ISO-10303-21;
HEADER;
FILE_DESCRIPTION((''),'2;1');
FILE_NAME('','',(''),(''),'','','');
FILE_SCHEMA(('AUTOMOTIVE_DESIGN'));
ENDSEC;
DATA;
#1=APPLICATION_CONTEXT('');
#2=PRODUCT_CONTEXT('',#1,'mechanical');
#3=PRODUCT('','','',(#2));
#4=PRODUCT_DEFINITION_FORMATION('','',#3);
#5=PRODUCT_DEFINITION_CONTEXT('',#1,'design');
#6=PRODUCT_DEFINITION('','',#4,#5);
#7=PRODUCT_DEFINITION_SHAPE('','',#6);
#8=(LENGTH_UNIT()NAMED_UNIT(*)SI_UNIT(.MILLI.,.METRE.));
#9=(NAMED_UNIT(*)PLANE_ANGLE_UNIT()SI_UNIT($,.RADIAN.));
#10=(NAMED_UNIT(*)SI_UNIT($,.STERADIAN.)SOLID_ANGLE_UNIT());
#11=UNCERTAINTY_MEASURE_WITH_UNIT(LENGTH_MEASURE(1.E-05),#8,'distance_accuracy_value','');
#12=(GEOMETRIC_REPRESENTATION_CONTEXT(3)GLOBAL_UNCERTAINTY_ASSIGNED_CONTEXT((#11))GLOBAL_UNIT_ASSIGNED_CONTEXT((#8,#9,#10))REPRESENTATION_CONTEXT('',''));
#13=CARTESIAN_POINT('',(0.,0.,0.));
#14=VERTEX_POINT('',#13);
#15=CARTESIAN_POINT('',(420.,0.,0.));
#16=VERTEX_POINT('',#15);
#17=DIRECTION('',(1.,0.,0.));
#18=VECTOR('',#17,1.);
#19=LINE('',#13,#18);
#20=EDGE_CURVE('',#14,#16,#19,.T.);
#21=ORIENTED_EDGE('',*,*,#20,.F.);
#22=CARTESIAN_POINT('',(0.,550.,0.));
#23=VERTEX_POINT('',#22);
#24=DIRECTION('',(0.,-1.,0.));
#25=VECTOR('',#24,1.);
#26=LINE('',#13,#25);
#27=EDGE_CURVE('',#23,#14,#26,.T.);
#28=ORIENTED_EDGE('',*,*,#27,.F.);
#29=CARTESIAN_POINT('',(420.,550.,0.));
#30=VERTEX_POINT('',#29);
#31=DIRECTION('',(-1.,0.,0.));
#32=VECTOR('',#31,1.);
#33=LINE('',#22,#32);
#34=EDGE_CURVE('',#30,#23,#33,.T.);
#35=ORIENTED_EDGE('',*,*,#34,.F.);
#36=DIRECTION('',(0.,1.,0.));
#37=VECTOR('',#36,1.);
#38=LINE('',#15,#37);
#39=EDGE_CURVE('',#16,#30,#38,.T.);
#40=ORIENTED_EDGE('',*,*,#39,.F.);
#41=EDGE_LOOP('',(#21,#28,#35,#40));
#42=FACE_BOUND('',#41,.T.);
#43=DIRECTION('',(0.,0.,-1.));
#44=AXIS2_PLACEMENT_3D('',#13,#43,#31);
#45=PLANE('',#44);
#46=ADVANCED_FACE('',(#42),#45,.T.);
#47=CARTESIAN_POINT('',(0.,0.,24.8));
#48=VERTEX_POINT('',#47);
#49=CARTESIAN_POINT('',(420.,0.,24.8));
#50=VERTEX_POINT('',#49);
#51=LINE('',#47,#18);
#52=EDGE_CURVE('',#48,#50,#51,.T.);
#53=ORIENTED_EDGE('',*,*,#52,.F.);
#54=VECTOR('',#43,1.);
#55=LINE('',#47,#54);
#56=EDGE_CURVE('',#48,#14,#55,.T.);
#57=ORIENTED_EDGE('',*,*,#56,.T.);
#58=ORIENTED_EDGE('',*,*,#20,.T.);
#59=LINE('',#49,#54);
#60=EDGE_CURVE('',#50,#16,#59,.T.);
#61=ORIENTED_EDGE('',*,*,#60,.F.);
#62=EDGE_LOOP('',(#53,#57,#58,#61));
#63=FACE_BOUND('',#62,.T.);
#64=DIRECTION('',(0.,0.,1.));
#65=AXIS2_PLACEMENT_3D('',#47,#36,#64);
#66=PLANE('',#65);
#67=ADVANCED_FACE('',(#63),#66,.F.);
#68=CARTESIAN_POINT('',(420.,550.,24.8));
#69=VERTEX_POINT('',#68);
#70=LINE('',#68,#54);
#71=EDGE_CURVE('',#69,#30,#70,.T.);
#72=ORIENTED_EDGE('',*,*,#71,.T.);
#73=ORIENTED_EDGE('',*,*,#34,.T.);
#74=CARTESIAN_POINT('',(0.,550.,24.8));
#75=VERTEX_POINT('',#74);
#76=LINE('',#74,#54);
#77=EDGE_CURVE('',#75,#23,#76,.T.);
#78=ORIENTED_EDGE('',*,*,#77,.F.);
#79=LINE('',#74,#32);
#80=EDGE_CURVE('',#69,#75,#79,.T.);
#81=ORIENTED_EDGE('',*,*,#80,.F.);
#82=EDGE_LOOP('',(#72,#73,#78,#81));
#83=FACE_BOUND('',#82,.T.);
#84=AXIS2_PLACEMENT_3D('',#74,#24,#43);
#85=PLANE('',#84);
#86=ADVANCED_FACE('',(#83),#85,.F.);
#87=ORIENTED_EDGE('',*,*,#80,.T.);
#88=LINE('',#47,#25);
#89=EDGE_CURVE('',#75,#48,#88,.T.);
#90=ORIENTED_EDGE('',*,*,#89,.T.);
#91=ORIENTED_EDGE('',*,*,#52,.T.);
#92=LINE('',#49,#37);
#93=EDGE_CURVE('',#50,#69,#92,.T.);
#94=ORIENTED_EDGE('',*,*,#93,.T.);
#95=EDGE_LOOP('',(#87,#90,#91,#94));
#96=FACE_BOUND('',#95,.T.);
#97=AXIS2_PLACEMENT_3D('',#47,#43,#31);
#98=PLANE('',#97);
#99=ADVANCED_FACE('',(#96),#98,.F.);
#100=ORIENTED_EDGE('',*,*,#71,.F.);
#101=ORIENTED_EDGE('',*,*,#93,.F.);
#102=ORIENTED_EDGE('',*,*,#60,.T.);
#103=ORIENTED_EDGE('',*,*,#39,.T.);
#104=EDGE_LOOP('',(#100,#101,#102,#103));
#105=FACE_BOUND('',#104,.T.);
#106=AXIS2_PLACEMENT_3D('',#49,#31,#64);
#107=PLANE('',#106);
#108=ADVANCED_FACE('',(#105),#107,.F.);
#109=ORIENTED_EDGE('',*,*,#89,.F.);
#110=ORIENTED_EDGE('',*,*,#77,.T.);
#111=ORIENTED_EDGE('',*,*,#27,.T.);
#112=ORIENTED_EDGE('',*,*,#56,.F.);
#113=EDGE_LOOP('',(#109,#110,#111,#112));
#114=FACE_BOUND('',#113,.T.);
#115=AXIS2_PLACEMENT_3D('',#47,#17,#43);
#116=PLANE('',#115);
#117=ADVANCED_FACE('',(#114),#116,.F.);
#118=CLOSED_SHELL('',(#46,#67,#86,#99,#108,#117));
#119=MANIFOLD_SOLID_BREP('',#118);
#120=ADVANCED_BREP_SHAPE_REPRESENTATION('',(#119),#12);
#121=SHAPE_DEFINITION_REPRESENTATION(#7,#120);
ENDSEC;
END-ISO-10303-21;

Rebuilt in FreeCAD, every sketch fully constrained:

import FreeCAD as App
import Part
import Sketcher

doc = App.newDocument("Part")
body = doc.addObject("PartDesign::Body", "Body")

# Sketch on XY plane
sketch1 = doc.addObject("Sketcher::SketchObject", "Sketch")
body.addObject(sketch1)
sketch1.AttachmentSupport = (doc.XY_Plane, [""])
sketch1.MapMode = "FlatFace"
sketch1.addGeometry([
    Part.LineSegment(App.Vector(0, 550, 0), App.Vector(0, 0, 0)),
    Part.LineSegment(App.Vector(0, 0, 0), App.Vector(420, 0, 0)),
    Part.LineSegment(App.Vector(420, 0, 0), App.Vector(420, 550, 0)),
    Part.LineSegment(App.Vector(420, 550, 0), App.Vector(0, 550, 0)),
], False)
sketch1.addConstraint([
    Sketcher.Constraint("Coincident", 0, 2, 1, 1),
    Sketcher.Constraint("Coincident", 1, 2, 2, 1),
    Sketcher.Constraint("Coincident", 2, 2, 3, 1),
    Sketcher.Constraint("Coincident", 3, 2, 0, 1),
    Sketcher.Constraint("Vertical", 0),
    Sketcher.Constraint("Horizontal", 1),
    Sketcher.Constraint("Vertical", 2),
    Sketcher.Constraint("Horizontal", 3),
    Sketcher.Constraint("Coincident", 0, 2, -1, 1),
    Sketcher.Constraint("DistanceX", 1, 1, 1, 2, 420.0),
    Sketcher.Constraint("DistanceY", 0, 2, 0, 1, 550.0),
])
pad1 = doc.addObject("PartDesign::Pad", "Pad")
body.addObject(pad1)
pad1.Profile = sketch1
pad1.Length = 24.8

doc.recompute()
